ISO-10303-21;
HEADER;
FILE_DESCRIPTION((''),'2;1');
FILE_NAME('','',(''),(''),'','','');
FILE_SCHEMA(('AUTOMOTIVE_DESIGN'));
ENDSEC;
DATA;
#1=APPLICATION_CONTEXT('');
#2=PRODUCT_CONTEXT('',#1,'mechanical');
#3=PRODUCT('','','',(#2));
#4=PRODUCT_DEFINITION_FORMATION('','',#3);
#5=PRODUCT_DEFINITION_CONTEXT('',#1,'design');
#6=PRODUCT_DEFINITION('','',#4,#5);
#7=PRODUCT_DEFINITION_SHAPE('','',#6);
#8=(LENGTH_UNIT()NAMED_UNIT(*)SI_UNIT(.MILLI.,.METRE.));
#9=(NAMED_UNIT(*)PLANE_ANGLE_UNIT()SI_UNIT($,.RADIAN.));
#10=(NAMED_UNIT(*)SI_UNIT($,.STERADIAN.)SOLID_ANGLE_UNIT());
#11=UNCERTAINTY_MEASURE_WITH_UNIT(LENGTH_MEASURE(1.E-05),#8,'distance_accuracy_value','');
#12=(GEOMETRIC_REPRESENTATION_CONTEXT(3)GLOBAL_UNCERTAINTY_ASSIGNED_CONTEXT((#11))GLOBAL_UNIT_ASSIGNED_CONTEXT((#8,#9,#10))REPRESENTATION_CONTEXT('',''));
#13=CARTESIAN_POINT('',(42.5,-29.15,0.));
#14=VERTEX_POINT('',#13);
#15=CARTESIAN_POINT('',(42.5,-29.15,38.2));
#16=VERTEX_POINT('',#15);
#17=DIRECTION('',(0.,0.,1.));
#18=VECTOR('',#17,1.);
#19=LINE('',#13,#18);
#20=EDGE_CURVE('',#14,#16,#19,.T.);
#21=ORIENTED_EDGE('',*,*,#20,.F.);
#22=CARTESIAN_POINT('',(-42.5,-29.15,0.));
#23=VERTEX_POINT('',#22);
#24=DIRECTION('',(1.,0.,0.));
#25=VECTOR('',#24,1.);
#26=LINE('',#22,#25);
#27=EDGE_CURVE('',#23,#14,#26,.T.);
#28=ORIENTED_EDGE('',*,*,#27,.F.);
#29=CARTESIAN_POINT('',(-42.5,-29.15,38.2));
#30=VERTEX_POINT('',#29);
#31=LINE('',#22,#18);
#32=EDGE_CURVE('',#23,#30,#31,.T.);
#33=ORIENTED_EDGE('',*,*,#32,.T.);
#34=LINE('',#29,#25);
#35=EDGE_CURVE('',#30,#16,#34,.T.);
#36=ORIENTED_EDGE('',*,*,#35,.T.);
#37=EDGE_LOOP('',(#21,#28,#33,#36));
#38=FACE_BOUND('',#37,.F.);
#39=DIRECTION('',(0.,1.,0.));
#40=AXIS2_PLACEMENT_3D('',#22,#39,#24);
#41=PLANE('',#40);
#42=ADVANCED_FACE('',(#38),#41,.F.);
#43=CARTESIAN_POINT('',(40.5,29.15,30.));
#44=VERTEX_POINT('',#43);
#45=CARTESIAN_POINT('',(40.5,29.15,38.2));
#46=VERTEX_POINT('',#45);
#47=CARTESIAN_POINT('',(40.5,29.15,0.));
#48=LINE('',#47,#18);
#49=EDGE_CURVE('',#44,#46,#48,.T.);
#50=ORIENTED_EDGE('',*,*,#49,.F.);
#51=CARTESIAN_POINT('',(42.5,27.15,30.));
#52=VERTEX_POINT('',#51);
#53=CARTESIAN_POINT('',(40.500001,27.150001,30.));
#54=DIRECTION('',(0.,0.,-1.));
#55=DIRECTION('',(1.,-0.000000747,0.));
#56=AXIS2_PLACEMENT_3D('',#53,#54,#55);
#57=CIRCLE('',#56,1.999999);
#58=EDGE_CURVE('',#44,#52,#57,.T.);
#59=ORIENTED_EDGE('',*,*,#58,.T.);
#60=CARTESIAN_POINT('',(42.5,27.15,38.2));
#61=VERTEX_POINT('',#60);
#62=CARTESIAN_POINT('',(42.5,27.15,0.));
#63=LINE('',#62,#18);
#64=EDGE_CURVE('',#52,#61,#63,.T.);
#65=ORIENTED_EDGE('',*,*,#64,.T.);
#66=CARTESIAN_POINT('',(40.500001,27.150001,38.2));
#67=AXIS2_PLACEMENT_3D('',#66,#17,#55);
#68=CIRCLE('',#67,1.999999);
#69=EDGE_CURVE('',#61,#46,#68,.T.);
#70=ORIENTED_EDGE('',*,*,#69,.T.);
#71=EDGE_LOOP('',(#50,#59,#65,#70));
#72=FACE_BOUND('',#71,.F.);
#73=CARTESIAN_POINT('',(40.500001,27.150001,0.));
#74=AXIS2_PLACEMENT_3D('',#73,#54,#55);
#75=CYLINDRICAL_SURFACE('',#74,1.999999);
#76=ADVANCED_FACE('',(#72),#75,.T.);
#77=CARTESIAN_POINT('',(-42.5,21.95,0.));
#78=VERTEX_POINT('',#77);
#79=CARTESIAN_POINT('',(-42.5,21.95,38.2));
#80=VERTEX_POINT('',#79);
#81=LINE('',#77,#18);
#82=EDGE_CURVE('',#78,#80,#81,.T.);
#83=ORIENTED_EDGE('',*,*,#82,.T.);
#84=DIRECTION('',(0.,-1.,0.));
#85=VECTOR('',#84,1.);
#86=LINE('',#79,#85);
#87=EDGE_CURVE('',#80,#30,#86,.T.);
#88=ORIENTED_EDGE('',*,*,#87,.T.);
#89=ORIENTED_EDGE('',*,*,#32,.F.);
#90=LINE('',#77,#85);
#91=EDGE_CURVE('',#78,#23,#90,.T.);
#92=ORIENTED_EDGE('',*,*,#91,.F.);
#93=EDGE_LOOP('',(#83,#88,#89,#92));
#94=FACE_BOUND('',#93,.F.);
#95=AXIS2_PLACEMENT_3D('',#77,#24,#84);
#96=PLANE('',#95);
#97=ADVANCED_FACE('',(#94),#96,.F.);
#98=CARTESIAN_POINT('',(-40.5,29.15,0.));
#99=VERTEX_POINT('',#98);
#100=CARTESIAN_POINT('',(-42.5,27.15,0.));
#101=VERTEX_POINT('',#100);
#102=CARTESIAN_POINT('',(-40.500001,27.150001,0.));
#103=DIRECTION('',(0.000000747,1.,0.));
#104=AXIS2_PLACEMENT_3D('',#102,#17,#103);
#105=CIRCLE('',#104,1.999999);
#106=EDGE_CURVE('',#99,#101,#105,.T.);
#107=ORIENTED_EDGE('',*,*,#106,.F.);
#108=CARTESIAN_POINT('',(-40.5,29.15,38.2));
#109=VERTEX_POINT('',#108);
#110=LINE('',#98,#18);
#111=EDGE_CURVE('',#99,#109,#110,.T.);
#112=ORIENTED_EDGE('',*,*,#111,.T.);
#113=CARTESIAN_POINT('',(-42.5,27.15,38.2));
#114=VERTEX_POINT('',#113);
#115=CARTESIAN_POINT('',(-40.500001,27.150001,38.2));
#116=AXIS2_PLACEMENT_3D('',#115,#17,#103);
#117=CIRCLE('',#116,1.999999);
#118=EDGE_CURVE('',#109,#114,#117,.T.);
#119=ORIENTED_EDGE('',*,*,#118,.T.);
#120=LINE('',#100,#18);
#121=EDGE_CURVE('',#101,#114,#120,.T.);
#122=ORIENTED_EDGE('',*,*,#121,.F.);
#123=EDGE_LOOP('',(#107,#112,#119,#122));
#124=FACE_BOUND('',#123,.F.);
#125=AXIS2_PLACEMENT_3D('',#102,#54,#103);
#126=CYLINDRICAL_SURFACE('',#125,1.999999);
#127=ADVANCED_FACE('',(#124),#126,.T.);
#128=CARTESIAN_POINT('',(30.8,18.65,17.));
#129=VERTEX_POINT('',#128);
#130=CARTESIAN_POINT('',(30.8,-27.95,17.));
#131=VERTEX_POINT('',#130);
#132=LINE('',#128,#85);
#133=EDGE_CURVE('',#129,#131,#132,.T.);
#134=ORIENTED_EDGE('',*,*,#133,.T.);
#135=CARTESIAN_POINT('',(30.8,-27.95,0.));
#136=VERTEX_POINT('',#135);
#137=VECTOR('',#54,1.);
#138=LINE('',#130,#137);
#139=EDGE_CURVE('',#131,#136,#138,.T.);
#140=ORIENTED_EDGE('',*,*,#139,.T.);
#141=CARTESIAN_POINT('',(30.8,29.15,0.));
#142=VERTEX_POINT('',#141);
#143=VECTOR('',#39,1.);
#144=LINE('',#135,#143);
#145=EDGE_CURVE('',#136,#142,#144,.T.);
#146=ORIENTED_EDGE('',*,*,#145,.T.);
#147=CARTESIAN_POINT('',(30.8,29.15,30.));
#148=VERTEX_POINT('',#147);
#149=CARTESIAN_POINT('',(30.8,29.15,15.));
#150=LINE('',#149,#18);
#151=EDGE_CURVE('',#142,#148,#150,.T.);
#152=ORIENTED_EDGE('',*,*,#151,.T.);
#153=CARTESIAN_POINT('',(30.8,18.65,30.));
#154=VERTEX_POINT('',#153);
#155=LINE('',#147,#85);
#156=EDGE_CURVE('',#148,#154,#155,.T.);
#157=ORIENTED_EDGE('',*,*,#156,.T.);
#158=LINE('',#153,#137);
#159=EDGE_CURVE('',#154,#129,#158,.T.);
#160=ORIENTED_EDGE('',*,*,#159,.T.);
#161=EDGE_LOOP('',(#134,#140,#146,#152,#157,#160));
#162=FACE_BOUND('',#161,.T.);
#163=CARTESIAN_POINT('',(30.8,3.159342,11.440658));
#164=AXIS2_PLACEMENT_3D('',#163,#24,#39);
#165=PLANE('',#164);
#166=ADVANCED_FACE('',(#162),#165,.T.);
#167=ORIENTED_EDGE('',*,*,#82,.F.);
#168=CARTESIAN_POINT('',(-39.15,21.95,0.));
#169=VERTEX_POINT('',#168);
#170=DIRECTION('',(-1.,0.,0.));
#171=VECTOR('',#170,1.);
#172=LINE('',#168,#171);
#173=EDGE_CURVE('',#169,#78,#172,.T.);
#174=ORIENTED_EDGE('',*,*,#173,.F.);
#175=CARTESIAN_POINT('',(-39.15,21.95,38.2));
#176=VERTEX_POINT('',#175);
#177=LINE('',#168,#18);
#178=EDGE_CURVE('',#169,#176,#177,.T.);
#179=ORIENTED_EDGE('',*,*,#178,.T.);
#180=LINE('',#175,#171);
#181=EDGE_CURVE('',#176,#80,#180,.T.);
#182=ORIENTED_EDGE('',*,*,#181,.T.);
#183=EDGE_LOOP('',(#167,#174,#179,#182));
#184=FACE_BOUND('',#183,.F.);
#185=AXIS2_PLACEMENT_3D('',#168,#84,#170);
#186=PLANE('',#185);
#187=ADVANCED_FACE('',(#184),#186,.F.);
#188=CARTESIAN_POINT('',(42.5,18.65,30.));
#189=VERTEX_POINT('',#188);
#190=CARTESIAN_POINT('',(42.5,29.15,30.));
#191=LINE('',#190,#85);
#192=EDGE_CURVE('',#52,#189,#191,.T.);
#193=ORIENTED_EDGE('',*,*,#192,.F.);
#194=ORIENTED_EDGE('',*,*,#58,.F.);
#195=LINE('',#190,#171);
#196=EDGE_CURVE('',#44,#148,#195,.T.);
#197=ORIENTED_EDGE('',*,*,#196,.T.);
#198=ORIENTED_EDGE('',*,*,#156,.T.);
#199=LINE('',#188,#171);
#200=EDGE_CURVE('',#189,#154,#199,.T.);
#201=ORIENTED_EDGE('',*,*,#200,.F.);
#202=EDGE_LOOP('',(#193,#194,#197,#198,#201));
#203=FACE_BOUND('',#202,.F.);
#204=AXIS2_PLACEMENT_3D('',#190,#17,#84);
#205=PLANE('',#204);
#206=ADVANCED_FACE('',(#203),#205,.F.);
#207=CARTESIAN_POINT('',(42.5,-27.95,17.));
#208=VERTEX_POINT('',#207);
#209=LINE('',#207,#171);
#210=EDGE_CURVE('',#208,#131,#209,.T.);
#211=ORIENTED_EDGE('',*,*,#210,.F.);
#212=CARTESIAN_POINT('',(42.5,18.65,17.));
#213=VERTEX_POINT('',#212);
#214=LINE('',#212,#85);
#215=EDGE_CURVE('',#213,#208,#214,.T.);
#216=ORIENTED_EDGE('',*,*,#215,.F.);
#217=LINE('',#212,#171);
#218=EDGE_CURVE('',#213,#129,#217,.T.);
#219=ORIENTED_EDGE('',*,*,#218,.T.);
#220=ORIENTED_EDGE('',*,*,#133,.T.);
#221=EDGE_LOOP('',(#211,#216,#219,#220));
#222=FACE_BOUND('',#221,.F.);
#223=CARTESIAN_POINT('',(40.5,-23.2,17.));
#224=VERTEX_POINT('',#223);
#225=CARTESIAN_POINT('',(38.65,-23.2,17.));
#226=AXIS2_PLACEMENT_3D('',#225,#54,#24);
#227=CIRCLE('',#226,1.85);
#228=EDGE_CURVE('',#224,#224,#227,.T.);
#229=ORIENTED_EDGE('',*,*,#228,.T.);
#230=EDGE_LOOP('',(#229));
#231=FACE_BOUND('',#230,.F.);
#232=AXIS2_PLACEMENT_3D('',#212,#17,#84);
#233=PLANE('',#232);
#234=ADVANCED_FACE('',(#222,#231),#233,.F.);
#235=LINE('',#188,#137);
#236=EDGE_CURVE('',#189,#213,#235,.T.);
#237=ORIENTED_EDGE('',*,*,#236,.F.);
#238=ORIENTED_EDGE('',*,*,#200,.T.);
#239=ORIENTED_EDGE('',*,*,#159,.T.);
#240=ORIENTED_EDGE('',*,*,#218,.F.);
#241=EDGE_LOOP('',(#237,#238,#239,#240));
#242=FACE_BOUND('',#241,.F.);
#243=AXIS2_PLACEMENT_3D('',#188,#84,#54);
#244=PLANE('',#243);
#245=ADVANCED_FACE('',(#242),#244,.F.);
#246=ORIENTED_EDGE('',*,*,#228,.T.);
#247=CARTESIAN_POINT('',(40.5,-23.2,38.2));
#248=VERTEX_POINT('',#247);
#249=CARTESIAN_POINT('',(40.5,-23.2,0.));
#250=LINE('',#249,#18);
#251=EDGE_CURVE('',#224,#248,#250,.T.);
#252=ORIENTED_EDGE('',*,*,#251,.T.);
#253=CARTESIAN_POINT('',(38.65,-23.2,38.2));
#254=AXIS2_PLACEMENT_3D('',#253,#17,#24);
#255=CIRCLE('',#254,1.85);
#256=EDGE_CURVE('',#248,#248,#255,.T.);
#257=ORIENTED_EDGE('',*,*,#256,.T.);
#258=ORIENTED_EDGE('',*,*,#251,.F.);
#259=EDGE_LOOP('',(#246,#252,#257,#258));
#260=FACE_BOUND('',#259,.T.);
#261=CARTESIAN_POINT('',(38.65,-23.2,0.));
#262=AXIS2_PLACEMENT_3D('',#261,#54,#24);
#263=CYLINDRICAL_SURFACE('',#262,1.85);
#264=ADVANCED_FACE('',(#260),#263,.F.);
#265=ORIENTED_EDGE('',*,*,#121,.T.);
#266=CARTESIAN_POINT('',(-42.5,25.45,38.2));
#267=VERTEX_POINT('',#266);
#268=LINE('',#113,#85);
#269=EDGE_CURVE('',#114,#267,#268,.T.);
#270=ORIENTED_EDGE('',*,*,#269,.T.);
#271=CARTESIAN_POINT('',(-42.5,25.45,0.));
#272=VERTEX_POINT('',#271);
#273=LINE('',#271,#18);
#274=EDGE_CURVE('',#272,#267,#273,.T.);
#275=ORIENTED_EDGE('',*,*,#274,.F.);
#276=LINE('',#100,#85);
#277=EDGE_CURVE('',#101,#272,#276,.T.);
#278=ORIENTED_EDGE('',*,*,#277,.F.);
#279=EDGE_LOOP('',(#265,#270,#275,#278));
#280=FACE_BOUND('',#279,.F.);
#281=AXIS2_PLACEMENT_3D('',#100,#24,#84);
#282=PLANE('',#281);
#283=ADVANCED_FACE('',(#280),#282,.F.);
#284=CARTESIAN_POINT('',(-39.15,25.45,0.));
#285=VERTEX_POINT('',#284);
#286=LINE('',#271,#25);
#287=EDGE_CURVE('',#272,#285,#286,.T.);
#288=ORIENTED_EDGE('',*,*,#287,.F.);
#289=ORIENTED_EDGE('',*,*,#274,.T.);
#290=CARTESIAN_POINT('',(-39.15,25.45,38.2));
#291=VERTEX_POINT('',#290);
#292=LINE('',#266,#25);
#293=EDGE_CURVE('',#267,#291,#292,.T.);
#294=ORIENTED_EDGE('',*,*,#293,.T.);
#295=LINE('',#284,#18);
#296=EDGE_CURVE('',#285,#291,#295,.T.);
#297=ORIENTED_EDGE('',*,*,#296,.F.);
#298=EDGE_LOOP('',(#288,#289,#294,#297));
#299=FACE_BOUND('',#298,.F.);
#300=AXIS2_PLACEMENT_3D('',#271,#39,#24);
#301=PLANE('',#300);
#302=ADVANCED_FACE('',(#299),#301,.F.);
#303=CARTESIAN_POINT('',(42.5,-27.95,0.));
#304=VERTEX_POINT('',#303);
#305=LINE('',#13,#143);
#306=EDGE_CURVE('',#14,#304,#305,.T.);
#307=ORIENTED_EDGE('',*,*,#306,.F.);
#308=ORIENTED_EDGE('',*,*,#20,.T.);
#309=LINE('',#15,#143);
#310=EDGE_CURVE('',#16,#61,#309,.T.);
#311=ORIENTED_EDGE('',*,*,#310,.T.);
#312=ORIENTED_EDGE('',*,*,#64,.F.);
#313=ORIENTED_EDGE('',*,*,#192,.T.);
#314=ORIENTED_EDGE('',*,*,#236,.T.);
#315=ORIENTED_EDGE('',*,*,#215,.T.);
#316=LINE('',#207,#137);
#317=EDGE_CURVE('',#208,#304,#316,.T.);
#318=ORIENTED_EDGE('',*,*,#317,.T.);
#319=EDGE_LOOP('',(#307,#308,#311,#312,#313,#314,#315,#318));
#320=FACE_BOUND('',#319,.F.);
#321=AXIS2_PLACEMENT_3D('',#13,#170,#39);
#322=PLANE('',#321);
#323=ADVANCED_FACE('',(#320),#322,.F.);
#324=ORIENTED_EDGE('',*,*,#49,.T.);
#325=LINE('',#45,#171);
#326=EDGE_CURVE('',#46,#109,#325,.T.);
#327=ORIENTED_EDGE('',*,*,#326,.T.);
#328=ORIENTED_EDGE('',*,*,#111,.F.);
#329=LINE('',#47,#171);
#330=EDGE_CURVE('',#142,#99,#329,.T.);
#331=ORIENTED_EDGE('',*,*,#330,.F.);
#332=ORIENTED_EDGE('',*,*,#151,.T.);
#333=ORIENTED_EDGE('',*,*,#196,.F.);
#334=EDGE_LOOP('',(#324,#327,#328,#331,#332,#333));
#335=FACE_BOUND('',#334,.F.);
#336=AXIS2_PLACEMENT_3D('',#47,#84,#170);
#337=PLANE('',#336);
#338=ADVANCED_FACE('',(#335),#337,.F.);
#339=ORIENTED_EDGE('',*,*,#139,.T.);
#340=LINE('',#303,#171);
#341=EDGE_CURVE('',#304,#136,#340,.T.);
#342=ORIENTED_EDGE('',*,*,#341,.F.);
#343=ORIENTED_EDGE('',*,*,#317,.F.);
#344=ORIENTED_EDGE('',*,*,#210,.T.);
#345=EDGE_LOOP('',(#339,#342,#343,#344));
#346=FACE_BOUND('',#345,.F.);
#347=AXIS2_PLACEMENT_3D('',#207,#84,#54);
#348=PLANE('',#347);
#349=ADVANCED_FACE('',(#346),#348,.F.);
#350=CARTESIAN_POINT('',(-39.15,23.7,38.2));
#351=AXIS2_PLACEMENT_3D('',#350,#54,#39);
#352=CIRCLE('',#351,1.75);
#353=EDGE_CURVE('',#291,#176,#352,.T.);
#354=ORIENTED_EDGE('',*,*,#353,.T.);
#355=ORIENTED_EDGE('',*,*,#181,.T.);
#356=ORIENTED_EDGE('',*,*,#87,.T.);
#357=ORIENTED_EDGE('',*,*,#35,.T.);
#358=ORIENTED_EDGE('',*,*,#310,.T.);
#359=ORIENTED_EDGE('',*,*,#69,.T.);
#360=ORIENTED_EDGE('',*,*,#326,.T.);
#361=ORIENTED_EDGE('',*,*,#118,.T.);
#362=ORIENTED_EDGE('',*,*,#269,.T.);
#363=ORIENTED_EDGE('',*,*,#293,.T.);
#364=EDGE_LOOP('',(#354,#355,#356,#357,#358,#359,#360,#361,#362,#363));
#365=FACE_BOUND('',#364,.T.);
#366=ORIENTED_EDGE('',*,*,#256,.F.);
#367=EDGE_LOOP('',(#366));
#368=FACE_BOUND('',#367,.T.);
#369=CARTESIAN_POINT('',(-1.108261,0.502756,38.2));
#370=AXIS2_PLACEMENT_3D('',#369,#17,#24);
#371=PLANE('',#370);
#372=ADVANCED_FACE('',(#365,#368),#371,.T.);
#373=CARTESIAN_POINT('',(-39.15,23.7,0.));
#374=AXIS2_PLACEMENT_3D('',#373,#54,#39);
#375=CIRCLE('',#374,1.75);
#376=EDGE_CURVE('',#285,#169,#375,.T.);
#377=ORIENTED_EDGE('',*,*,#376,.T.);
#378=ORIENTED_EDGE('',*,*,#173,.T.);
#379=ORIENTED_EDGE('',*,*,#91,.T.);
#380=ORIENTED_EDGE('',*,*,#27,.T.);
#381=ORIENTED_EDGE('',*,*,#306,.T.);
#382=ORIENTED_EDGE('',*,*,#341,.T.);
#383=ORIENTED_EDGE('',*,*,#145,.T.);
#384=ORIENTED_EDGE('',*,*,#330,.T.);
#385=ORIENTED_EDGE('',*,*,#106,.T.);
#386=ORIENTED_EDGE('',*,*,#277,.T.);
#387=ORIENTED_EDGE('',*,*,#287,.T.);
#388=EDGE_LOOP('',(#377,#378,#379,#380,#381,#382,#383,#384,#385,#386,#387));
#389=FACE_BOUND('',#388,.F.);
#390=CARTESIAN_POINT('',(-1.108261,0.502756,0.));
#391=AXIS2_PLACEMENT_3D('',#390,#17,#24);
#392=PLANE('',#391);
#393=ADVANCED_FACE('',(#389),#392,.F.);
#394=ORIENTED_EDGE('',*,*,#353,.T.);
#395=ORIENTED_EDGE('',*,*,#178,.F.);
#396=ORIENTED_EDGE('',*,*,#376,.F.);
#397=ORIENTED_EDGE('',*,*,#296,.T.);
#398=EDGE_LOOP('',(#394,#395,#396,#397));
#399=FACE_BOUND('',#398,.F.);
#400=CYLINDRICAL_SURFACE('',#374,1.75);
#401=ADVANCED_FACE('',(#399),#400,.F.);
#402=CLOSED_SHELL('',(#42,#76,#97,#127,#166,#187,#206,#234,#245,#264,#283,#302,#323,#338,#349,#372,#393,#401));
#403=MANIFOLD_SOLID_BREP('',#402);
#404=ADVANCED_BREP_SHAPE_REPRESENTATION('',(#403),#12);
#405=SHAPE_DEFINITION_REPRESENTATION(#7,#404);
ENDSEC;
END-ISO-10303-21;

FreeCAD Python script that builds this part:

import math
import FreeCAD as App
import Part
import Sketcher
from FreeCAD import Vector

doc = App.newDocument("Part")
body = doc.addObject("PartDesign::Body", "Body")

sketch1 = body.newObject("Sketcher::SketchObject", "Sketch")
sketch1.AttachmentSupport = (doc.getObject("XY_Plane"), [""])
sketch1.MapMode = "FlatFace"
sketch1.addGeometry([
    Part.ArcOfCircle(Part.Circle(Vector(40.5, 27.2, 0), Vector(0, 0, 1), 2), math.radians(0), math.radians(90)),
    Part.LineSegment(Vector(40.5, 29.1, 0), Vector(-40.5, 29.1, 0)),
    Part.ArcOfCircle(Part.Circle(Vector(-40.5, 27.2, 0), Vector(0, 0, 1), 2), math.radians(90), math.radians(180)),
    Part.LineSegment(Vector(-42.5, 27.1, 0), Vector(-42.5, 25.4, 0)),
    Part.LineSegment(Vector(-42.5, 25.4, 0), Vector(-39.1, 25.4, 0)),
    Part.ArcOfCircle(Part.Circle(Vector(-39.1, 23.7, 0), Vector(0, 0, 1), 1.8), math.radians(-90), math.radians(90)),
    Part.LineSegment(Vector(-39.1, 21.9, 0), Vector(-42.5, 21.9, 0)),
    Part.LineSegment(Vector(-42.5, 21.9, 0), Vector(-42.5, -29.1, 0)),
    Part.LineSegment(Vector(-42.5, -29.1, 0), Vector(42.5, -29.1, 0)),
    Part.LineSegment(Vector(42.5, -29.1, 0), Vector(42.5, 27.1, 0)),
    Part.Circle(Vector(38.6, -23.2, 0), Vector(0, 0, 1), 1.9),
], False)
sketch1.addConstraint([
    Sketcher.Constraint("Tangent", 0, 2, 1, 1),
    Sketcher.Constraint("Tangent", 1, 2, 2, 1),
    Sketcher.Constraint("Tangent", 2, 2, 3, 1),
    Sketcher.Constraint("Coincident", 3, 2, 4, 1),
    Sketcher.Constraint("Tangent", 4, 2, 5, 2),
    Sketcher.Constraint("Tangent", 5, 1, 6, 1),
    Sketcher.Constraint("Coincident", 6, 2, 7, 1),
    Sketcher.Constraint("Coincident", 7, 2, 8, 1),
    Sketcher.Constraint("Coincident", 8, 2, 9, 1),
    Sketcher.Constraint("Tangent", 9, 2, 0, 1),
    Sketcher.Constraint("Horizontal", 1),
    Sketcher.Constraint("Vertical", 3),
    Sketcher.Constraint("Horizontal", 4),
    Sketcher.Constraint("Horizontal", 6),
    Sketcher.Constraint("Vertical", 7),
    Sketcher.Constraint("Horizontal", 8),
    Sketcher.Constraint("Vertical", 9),
    Sketcher.Constraint("Equal", 0, 2),
    Sketcher.Constraint("Vertical", 3, 2, 6, 2),
    Sketcher.Constraint("Radius", 0, 1.999999),
    Sketcher.Constraint("Diameter", 10, 3.7),
    Sketcher.Constraint("DistanceX", 1, 2, 1, 1, 81.0),
    Sketcher.Constraint("Radius", 5, 1.75),
    Sketcher.Constraint("DistanceY", 3, 2, 3, 1, 1.7),
    Sketcher.Constraint("DistanceY", 7, 2, 7, 1, 51.1),
    Sketcher.Constraint("DistanceX", 4, 1, 4, 2, 3.35),
    Sketcher.Constraint("DistanceX", -1, 1, 0, 3, 40.500001),
    Sketcher.Constraint("DistanceY", -1, 1, 5, 3, 23.7),
    Sketcher.Constraint("DistanceY", 10, 3, -1, 1, 23.2),
    Sketcher.Constraint("DistanceX", 5, 3, 10, 3, 77.8),
])
pad1 = body.newObject("PartDesign::Pad", "Pad")
pad1.Profile = sketch1
pad1.Length = 38.2

sketch2 = body.newObject("Sketcher::SketchObject", "Sketch001")
sketch2.AttachmentSupport = (doc.getObject("YZ_Plane"), [""])
sketch2.MapMode = "FlatFace"
sketch2.AttachmentOffset = App.Placement(Vector(0, 0, 42.5), App.Rotation())
sketch2.addGeometry([
    Part.LineSegment(Vector(-28, 17, 0), Vector(-28, 0, 0)),
    Part.LineSegment(Vector(-28, 0, 0), Vector(29, 0, 0)),
    Part.LineSegment(Vector(29, 0, 0), Vector(29, 30, 0)),
    Part.LineSegment(Vector(29, 30, 0), Vector(19, 30, 0)),
    Part.LineSegment(Vector(19, 30, 0), Vector(19, 17, 0)),
    Part.LineSegment(Vector(19, 17, 0), Vector(-28, 17, 0)),
], False)
sketch2.addConstraint([
    Sketcher.Constraint("Coincident", 0, 2, 1, 1),
    Sketcher.Constraint("Coincident", 1, 2, 2, 1),
    Sketcher.Constraint("Coincident", 2, 2, 3, 1),
    Sketcher.Constraint("Coincident", 3, 2, 4, 1),
    Sketcher.Constraint("Coincident", 4, 2, 5, 1),
    Sketcher.Constraint("Coincident", 5, 2, 0, 1),
    Sketcher.Constraint("Vertical", 0),
    Sketcher.Constraint("Horizontal", 1),
    Sketcher.Constraint("Vertical", 2),
    Sketcher.Constraint("Horizontal", 3),
    Sketcher.Constraint("Vertical", 4),
    Sketcher.Constraint("Horizontal", 5),
    Sketcher.Constraint("PointOnObject", 0, 2, -1),
    Sketcher.Constraint("DistanceY", 0, 2, 0, 1, 17.0),
    Sketcher.Constraint("DistanceY", 2, 1, 2, 2, 30.0),
    Sketcher.Constraint("DistanceX", 1, 1, 1, 2, 57.1),
    Sketcher.Constraint("DistanceX", 3, 2, 3, 1, 10.5),
    Sketcher.Constraint("DistanceX", 0, 2, -1, 1, 27.95),
])
pocket1 = body.newObject("PartDesign::Pocket", "Pocket")
pocket1.Profile = sketch2
pocket1.Length = 11.7

doc.recompute()
